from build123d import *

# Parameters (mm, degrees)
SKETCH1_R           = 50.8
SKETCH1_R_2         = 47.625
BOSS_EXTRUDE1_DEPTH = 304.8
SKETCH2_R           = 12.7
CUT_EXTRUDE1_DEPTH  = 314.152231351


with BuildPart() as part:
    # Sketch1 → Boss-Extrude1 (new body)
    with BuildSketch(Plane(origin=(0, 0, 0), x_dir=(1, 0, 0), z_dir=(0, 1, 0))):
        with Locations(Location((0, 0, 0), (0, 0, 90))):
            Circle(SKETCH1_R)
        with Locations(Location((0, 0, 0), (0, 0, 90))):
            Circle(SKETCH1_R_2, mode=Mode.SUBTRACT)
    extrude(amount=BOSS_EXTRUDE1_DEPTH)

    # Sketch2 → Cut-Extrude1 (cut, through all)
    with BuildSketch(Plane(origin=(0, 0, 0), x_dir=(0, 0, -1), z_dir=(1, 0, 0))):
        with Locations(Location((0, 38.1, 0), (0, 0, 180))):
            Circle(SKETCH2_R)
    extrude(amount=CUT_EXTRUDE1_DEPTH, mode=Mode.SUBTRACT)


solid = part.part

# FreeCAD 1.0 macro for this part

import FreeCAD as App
import Part
import Sketcher
Q = App.Units.Quantity

doc = App.newDocument("Part")
body = doc.addObject("PartDesign::Body", "Body")

sketch1 = body.newObject("Sketcher::SketchObject", "Sketch")
sketch1.AttachmentSupport = (doc.getObject("XZ_Plane"), [""])
sketch1.MapMode = "FlatFace"
sketch1.addGeometry([
    Part.Circle(App.Vector(0, 0, 0), App.Vector(0, 0, 1), 51),
    Part.Circle(App.Vector(0, 0, 0), App.Vector(0, 0, 1), 48),
], False)
sketch1.addConstraint([
    Sketcher.Constraint("Coincident", 0, 3, -1, 1),
    Sketcher.Constraint("Coincident", 1, 3, -1, 1),
    Sketcher.Constraint("Diameter", 0, Q("4 in")),
    Sketcher.Constraint("Diameter", 1, Q("3.75 in")),
])
pad1 = body.newObject("PartDesign::Pad", "Pad")
pad1.Profile = sketch1
pad1.Length = Q("12 in")
pad1.Reversed = True

sketch2 = body.newObject("Sketcher::SketchObject", "Sketch001")
sketch2.AttachmentSupport = (doc.getObject("YZ_Plane"), [""])
sketch2.MapMode = "FlatFace"
sketch2.addGeometry(Part.Circle(App.Vector(38, 0, 0), App.Vector(0, 0, 1), 13), False)
sketch2.addConstraint([
    Sketcher.Constraint("PointOnObject", 0, 3, -1),
    Sketcher.Constraint("Diameter", 0, Q("1 in")),
    Sketcher.Constraint("DistanceX", -1, 1, 0, 3, Q("1.5 in")),
])
pocket1 = body.newObject("PartDesign::Pocket", "Pocket")
pocket1.Profile = sketch2
pocket1.Type = "ThroughAll"
pocket1.Reversed = True

doc.recompute()
